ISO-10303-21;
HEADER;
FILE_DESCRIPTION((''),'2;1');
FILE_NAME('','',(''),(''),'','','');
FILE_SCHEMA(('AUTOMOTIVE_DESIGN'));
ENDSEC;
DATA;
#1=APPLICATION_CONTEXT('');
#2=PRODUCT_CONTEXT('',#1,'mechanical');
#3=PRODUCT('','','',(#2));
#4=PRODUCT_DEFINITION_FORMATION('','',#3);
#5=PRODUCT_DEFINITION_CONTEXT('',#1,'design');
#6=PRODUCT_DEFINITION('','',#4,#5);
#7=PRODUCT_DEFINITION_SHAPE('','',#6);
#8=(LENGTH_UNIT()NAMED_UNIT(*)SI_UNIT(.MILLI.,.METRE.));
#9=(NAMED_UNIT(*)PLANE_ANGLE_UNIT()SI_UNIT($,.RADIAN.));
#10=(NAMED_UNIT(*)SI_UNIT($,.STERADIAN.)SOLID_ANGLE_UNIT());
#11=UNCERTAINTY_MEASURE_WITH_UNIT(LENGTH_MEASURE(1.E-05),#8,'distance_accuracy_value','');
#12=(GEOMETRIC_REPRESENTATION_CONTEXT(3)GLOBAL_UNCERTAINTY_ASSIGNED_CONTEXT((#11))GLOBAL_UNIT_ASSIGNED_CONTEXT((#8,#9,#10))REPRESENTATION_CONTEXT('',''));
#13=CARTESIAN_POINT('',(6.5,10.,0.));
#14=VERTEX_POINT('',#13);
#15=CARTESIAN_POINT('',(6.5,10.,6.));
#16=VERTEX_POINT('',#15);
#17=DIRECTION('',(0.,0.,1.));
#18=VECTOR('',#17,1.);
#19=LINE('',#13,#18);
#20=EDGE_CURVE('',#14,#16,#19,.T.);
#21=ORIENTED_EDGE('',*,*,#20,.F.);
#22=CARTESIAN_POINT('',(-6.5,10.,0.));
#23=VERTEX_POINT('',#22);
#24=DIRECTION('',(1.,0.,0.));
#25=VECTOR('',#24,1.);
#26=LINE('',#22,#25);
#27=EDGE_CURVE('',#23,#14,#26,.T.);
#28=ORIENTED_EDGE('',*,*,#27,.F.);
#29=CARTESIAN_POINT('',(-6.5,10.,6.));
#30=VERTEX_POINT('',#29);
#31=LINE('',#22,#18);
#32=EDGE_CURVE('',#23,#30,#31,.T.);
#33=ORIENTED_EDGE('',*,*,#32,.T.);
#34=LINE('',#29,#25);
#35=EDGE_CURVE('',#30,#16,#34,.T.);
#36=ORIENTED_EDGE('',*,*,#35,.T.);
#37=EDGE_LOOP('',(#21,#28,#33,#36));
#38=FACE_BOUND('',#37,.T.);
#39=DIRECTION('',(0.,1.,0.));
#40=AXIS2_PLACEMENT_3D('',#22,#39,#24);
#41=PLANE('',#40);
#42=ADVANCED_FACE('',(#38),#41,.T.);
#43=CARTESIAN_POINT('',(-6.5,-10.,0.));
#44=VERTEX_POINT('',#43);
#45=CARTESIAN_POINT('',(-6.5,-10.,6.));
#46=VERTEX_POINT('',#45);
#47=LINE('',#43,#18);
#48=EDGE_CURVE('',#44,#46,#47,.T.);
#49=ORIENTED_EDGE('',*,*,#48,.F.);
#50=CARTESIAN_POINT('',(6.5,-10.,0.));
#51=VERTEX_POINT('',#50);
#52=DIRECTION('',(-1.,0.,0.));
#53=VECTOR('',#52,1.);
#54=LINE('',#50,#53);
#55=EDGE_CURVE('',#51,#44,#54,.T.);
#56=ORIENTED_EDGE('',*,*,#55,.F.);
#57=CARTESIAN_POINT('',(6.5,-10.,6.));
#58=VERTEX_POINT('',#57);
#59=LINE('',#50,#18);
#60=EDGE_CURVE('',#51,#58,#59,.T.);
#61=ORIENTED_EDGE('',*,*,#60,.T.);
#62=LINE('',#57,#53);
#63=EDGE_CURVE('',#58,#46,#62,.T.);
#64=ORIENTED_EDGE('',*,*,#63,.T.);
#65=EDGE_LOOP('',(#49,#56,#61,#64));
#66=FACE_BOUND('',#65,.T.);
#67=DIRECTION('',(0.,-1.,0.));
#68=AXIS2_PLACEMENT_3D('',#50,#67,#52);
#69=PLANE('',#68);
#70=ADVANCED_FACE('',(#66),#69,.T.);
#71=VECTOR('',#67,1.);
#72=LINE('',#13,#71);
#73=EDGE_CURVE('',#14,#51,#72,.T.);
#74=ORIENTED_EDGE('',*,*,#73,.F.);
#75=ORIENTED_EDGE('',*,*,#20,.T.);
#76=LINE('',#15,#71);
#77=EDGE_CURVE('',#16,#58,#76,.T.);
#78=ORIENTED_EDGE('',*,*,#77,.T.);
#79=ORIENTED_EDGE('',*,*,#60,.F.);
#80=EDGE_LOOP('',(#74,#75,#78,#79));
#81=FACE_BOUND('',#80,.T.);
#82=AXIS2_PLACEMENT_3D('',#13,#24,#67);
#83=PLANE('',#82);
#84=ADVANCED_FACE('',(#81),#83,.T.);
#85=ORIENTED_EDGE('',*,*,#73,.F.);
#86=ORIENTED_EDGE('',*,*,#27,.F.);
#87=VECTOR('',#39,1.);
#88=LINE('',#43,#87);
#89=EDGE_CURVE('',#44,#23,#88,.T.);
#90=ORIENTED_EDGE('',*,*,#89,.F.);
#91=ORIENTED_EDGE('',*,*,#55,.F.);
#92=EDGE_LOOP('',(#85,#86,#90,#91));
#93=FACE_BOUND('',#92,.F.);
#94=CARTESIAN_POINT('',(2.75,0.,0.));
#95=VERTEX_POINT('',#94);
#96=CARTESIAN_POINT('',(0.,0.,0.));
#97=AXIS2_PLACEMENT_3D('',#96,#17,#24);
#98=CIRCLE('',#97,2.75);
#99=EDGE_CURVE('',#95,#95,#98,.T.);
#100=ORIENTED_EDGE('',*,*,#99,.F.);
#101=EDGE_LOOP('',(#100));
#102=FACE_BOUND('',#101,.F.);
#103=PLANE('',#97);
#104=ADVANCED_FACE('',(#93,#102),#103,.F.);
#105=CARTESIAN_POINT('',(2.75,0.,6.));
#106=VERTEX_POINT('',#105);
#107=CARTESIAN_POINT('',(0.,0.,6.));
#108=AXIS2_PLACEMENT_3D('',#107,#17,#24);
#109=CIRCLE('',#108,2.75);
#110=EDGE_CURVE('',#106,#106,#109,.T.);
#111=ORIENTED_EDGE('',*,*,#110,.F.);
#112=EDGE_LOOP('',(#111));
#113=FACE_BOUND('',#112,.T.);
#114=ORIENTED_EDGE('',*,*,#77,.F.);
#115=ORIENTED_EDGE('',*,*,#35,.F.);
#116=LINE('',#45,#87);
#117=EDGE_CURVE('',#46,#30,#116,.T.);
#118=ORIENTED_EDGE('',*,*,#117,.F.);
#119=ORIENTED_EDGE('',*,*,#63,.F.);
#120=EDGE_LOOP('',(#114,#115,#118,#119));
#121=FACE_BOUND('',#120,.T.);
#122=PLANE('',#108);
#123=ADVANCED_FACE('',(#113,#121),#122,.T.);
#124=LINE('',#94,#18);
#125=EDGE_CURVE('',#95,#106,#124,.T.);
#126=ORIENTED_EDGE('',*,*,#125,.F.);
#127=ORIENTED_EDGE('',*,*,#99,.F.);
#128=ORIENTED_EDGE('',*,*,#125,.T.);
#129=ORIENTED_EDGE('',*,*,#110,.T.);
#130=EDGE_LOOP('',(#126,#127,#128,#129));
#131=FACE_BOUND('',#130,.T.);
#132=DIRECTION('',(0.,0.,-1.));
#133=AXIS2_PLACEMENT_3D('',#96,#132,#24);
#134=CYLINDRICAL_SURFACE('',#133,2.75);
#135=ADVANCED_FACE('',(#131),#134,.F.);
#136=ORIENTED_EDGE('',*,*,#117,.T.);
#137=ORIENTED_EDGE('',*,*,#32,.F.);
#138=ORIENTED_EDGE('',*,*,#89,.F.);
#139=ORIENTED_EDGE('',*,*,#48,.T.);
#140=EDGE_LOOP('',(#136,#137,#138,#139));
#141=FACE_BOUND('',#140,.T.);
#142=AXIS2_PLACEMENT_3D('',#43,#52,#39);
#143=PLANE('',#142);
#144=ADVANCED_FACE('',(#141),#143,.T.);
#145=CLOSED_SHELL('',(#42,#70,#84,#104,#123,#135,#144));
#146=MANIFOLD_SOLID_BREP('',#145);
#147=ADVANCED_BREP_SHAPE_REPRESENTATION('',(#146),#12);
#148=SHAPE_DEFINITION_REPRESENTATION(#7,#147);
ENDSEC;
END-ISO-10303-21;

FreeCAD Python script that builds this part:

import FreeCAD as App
import Part
import Sketcher

V = App.Vector
Q = App.Units.Quantity


def add_polygon(sketch, points):
    """Adds a closed chain of lines whose ends are joined by coincident constraints."""
    first, n = sketch.GeometryCount, len(points)
    for a, b in zip(points, points[1:] + points[:1]):
        sketch.addGeometry(Part.LineSegment(App.Vector(*a, 0), App.Vector(*b, 0)), False)
    for i in range(n):
        sketch.addConstraint(Sketcher.Constraint("Coincident", first + i, 2, first + (i + 1) % n, 1))

doc = App.newDocument("Part")
params = doc.addObject("Spreadsheet::Sheet", "Params")
for row, (alias, value) in enumerate([
    ("sketch1_diameter", "5.5 mm"),
    ("sketch1_width", "13 mm"),
    ("sketch1_height", "20 mm"),
    ("pad1_length", "6 mm"),
], start=1):
    params.set(f"A{row}", alias)
    params.set(f"B{row}", "=" + value)
    params.setAlias(f"B{row}", alias)

body = doc.addObject("PartDesign::Body", "Body")

# Sketch on XY plane
sketch1 = doc.addObject("Sketcher::SketchObject", "Sketch")
body.addObject(sketch1)
sketch1.AttachmentSupport = (doc.XY_Plane, [""])
sketch1.MapMode = "FlatFace"
add_polygon(sketch1, [(-6.5, -10), (6.5, -10), (6.5, 10), (-6.5, 10)])  # lines 0-3
sketch1.addGeometry(Part.Circle(V(0, 0, 0), V(0, 0, 1), 2.8), False)  # 4
sketch1.addConstraint([
    Sketcher.Constraint("Horizontal", 0),
    Sketcher.Constraint("Vertical", 1),
    Sketcher.Constraint("Horizontal", 2),
    Sketcher.Constraint("Vertical", 3),
    Sketcher.Constraint("Coincident", 4, 3, -1, 1),
    Sketcher.Constraint("Symmetric", 0, 2, 2, 2, -1, 1),
    Sketcher.Constraint("Diameter", 4, Q("5.5 mm")),
    Sketcher.Constraint("DistanceX", 0, 1, 0, 2, Q("13 mm")),
    Sketcher.Constraint("DistanceY", 1, 1, 1, 2, Q("20 mm")),
])
sketch1.setExpression("Constraints[10]", "Params.sketch1_diameter")
sketch1.setExpression("Constraints[11]", "Params.sketch1_width")
sketch1.setExpression("Constraints[12]", "Params.sketch1_height")
pad1 = doc.addObject("PartDesign::Pad", "Pad")
body.addObject(pad1)
pad1.Profile = sketch1
pad1.setExpression("Length", "Params.pad1_length")

doc.recompute()
